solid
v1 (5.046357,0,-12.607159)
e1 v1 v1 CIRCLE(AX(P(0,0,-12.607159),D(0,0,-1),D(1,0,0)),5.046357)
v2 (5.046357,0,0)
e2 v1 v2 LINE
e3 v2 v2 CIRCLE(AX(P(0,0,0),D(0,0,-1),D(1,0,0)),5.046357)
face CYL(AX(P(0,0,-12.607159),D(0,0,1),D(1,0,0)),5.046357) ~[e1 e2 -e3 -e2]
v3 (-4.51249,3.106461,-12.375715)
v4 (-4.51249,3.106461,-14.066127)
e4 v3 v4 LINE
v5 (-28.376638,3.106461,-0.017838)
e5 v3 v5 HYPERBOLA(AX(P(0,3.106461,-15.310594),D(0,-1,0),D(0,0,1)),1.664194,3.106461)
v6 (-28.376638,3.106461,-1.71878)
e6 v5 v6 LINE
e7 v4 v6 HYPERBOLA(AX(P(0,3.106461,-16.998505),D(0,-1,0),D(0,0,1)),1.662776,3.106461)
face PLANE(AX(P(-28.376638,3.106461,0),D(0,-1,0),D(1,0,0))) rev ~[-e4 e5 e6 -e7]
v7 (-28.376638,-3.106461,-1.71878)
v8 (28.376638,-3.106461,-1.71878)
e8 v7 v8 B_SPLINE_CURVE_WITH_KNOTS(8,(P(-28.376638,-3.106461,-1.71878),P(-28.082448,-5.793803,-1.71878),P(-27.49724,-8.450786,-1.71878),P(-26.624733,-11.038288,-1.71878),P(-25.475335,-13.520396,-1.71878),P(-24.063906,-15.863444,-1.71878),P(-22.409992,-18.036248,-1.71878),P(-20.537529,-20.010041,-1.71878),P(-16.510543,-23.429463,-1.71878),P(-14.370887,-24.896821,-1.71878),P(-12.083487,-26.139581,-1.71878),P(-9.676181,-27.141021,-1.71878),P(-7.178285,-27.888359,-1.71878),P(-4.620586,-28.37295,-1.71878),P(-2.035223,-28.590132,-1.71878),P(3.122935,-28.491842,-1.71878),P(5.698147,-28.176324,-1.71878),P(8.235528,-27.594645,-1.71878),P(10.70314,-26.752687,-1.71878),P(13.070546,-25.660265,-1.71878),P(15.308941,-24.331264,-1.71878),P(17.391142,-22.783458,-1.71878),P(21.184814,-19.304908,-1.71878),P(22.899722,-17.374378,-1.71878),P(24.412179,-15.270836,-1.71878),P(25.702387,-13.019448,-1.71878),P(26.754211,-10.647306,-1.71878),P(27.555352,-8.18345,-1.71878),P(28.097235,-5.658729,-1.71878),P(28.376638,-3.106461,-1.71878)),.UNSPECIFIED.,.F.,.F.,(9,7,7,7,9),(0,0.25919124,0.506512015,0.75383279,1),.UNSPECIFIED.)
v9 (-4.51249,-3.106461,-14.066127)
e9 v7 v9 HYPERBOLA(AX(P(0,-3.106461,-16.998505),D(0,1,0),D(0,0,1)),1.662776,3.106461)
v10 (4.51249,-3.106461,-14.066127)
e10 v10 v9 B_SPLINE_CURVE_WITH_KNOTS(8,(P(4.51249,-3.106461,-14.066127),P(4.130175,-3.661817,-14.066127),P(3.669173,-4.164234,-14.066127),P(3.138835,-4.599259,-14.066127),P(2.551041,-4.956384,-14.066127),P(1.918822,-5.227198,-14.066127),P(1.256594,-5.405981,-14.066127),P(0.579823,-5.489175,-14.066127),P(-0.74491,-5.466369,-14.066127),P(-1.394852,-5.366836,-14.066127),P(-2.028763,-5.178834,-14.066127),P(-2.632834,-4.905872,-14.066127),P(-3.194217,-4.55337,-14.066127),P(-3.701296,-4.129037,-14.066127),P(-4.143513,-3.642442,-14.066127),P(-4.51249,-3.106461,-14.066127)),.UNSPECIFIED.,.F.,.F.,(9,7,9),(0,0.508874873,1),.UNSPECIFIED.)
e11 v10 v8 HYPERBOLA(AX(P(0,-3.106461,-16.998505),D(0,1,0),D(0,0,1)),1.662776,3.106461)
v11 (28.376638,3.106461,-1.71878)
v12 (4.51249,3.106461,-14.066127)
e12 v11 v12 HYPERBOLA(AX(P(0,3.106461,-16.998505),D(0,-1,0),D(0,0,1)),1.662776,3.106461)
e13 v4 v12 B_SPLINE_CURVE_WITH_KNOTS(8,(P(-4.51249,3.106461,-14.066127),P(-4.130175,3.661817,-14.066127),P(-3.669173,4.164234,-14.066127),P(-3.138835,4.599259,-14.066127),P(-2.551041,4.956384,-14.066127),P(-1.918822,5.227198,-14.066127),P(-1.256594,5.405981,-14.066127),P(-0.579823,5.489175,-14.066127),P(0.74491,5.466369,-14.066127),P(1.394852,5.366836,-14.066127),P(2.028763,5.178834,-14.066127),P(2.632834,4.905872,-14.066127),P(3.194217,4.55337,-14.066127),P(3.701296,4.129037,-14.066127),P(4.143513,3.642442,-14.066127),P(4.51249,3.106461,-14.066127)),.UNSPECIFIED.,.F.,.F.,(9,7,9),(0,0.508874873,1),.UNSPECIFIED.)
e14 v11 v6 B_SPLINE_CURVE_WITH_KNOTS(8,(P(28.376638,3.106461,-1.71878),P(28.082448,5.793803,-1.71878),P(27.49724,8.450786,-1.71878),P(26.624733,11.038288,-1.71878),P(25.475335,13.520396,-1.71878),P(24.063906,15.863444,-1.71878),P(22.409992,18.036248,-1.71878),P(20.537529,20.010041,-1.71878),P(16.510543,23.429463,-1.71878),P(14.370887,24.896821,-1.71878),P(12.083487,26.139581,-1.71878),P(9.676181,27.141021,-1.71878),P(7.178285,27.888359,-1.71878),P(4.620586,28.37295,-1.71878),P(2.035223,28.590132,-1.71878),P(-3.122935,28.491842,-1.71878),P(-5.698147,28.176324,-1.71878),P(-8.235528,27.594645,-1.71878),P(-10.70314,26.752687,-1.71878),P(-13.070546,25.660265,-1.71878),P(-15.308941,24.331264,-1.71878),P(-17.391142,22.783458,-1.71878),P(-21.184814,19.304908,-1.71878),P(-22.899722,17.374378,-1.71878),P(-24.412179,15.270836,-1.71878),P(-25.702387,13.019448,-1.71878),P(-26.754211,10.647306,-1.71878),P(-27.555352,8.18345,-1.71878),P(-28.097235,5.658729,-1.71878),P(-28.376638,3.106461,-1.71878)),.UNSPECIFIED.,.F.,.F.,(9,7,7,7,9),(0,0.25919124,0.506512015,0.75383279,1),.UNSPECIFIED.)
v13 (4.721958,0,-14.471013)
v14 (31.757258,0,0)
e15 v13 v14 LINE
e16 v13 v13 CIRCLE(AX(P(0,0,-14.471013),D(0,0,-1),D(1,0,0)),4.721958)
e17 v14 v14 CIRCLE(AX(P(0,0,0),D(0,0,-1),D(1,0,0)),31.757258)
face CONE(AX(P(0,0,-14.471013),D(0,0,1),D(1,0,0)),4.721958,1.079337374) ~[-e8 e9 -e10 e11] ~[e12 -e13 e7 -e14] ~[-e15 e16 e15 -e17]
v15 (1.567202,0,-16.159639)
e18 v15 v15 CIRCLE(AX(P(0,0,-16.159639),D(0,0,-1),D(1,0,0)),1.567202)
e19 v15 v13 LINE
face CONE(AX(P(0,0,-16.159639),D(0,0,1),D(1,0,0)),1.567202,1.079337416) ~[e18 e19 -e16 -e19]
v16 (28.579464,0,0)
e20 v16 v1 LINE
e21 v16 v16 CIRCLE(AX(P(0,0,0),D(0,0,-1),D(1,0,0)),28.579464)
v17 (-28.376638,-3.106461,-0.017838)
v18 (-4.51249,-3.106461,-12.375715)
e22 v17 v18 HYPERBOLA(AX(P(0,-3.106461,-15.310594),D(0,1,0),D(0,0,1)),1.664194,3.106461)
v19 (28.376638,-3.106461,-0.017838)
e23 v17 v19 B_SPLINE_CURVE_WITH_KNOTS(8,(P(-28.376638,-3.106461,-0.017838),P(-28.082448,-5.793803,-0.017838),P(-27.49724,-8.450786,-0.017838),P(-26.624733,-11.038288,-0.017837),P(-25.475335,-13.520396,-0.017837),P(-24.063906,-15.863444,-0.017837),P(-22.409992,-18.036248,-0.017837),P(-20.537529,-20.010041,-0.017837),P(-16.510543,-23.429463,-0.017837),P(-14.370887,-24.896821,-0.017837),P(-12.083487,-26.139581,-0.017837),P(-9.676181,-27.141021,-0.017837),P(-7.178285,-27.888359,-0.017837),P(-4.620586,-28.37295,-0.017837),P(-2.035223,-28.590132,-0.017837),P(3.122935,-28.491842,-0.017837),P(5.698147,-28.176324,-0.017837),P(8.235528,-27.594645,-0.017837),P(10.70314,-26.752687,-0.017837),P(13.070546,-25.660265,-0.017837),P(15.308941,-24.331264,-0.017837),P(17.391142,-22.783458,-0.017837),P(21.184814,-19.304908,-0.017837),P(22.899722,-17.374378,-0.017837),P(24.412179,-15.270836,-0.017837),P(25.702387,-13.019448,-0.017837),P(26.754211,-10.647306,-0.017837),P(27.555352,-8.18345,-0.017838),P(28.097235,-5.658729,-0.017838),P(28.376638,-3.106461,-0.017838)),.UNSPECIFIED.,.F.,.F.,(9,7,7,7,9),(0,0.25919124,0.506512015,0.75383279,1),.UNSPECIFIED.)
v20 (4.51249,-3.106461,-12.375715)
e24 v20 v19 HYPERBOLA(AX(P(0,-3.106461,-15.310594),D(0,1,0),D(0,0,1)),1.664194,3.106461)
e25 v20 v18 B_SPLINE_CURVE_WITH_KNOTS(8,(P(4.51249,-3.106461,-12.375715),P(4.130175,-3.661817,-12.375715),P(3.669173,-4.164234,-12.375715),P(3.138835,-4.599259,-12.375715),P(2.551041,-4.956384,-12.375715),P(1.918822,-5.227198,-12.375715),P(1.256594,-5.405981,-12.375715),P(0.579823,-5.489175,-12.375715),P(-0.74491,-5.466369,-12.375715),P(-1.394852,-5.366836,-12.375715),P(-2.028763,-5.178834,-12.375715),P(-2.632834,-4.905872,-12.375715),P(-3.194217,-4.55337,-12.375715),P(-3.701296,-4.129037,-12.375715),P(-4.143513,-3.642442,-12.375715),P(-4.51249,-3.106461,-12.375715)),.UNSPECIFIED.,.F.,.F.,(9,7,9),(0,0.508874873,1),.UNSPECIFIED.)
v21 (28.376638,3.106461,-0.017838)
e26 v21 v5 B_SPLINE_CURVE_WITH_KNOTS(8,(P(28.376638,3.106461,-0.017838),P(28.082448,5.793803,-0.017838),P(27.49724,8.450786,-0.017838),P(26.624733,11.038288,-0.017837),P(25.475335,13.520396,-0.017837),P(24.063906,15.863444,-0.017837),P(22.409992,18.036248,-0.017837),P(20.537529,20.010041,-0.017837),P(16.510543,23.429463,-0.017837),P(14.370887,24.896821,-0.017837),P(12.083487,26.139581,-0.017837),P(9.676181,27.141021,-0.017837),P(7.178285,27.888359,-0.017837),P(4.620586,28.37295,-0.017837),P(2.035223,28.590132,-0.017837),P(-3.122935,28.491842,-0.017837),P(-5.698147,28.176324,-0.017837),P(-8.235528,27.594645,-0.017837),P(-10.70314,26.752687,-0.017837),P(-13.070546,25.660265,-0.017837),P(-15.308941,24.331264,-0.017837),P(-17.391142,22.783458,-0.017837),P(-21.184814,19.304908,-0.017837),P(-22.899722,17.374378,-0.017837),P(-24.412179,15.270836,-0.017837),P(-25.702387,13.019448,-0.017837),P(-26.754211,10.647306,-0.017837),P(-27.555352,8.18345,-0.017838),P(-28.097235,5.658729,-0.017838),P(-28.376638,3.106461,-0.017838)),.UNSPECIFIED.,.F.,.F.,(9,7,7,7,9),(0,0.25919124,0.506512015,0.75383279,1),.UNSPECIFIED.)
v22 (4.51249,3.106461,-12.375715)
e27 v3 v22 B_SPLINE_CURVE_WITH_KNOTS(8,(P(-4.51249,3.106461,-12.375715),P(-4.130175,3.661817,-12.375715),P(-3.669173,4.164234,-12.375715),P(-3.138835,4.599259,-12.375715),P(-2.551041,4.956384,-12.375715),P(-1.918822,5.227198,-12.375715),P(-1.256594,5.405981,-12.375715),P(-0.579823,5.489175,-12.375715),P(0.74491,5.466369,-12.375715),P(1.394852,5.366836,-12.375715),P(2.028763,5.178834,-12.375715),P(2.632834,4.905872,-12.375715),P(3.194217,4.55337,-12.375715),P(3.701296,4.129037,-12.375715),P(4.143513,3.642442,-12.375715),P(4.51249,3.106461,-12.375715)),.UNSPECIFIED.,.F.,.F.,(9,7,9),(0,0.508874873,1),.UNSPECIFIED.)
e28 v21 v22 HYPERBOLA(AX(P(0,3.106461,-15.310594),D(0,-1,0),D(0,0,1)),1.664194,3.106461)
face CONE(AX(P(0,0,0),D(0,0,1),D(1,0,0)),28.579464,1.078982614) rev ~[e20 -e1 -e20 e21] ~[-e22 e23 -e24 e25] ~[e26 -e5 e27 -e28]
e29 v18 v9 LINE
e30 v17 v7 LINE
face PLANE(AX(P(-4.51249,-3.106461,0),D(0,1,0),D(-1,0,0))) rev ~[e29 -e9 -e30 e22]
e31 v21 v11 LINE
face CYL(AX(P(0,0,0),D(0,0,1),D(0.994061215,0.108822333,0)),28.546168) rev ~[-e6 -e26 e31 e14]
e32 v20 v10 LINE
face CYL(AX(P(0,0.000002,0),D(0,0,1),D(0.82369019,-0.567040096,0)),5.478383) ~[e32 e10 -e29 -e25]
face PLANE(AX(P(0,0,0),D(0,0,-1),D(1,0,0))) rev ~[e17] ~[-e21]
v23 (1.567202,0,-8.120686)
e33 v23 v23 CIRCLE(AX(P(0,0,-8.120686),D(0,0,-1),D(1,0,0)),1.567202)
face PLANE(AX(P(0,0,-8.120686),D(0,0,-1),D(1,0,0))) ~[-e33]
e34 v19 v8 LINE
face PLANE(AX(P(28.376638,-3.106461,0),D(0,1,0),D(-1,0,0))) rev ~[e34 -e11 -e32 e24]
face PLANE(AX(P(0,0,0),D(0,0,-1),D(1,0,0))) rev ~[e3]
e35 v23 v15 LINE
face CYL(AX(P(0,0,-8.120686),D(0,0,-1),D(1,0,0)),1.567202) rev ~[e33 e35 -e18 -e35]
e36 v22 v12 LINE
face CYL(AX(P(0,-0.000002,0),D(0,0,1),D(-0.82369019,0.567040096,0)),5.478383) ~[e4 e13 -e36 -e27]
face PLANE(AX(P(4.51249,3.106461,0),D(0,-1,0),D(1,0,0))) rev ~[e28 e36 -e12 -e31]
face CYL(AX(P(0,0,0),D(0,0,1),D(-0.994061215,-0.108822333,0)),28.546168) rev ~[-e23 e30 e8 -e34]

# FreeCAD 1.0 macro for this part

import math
import FreeCAD as App
import Part
import Sketcher
from FreeCAD import Vector
Q = App.Units.Quantity

doc = App.newDocument("Part")
body = doc.addObject("PartDesign::Body", "Body")

# Sketch on XZ plane
sketch1 = body.newObject("Sketcher::SketchObject", "Sketch")
sketch1.AttachmentSupport = (doc.getObject("XZ_Plane"), [""])
sketch1.MapMode = "FlatFace"
sketch1.addGeometry(Part.LineSegment(Vector(0, 0, 0), Vector(0, -8.120686, 0)), False)
sketch1.addGeometry(Part.LineSegment(Vector(0, -8.120686, 0), Vector(1.567202, -8.120686, 0)), False)
sketch1.addGeometry(Part.LineSegment(Vector(1.567202, -8.120686, 0), Vector(1.567202, -16.159639, 0)), False)
sketch1.addGeometry(Part.LineSegment(Vector(1.567202, -16.159639, 0), Vector(4.721958, -14.471013, 0)), False)
sketch1.addGeometry(Part.LineSegment(Vector(4.721958, -14.471013, 0), Vector(31.757258, 0, 0)), False)
sketch1.addGeometry(Part.LineSegment(Vector(31.757258, 0, 0), Vector(28.579464, 0, 0)), False)
sketch1.addGeometry(Part.LineSegment(Vector(28.579464, 0, 0), Vector(5.046357, -12.607159, 0)), False)
sketch1.addGeometry(Part.LineSegment(Vector(5.046357, -12.607159, 0), Vector(5.046357, 0, 0)), False)
sketch1.addGeometry(Part.LineSegment(Vector(5.046357, 0, 0), Vector(0, 0, 0)), False)
sketch1.addConstraint(Sketcher.Constraint("Coincident", 0, 2, 1, 1))
sketch1.addConstraint(Sketcher.Constraint("Coincident", 1, 2, 2, 1))
sketch1.addConstraint(Sketcher.Constraint("Coincident", 2, 2, 3, 1))
sketch1.addConstraint(Sketcher.Constraint("Coincident", 3, 2, 4, 1))
sketch1.addConstraint(Sketcher.Constraint("Coincident", 4, 2, 5, 1))
sketch1.addConstraint(Sketcher.Constraint("Coincident", 5, 2, 6, 1))
sketch1.addConstraint(Sketcher.Constraint("Coincident", 6, 2, 7, 1))
sketch1.addConstraint(Sketcher.Constraint("Coincident", 7, 2, 8, 1))
sketch1.addConstraint(Sketcher.Constraint("Coincident", 8, 2, 0, 1))
sketch1.addConstraint(Sketcher.Constraint("Vertical", 0))
sketch1.addConstraint(Sketcher.Constraint("Horizontal", 1))
sketch1.addConstraint(Sketcher.Constraint("Vertical", 2))
sketch1.addConstraint(Sketcher.Constraint("Horizontal", 5))
sketch1.addConstraint(Sketcher.Constraint("Vertical", 7))
sketch1.addConstraint(Sketcher.Constraint("Horizontal", 8))
sketch1.addConstraint(Sketcher.Constraint("Coincident", 8, 2, -1, 1))
sketch1.addConstraint(Sketcher.Constraint("PointOnObject", 4, 2, -1))
sketch1.addConstraint(Sketcher.Constraint("Parallel", 3, 4))
sketch1.addConstraint(Sketcher.Constraint("Distance", 4, 30.6646))
sketch1.addConstraint(Sketcher.Constraint("DistanceY", 7, 1, 7, 2, 12.607159))
sketch1.addConstraint(Sketcher.Constraint("DistanceX", 3, 2, 4, 2, 27.0353))
sketch1.addConstraint(Sketcher.Constraint("DistanceX", 3, 2, 6, 2, 0.324399))
sketch1.addConstraint(Sketcher.Constraint("Distance", 3, 3.57826))
sketch1.addConstraint(Sketcher.Constraint("DistanceX", 1, 1, 1, 2, 1.567202))
sketch1.addConstraint(Sketcher.Constraint("DistanceX", 5, 2, 5, 1, 3.177794))
sketch1.addConstraint(Sketcher.Constraint("DistanceY", 0, 2, 0, 1, 8.120686))
revolution = body.newObject("PartDesign::Revolution", "Revolution")
revolution.Profile = sketch1
revolution.ReferenceAxis = (sketch1, ["V_Axis"])
revolution.Angle = 360

# Sketch on XY plane
sketch2 = body.newObject("Sketcher::SketchObject", "Sketch001")
sketch2.AttachmentSupport = (doc.getObject("XY_Plane"), [""])
sketch2.MapMode = "FlatFace"
sketch2.addGeometry(Part.ArcOfCircle(Part.Circle(Vector(0, -0.000002, 0), Vector(0, 0, 1), 5.478383), math.radians(34.54408), math.radians(145.45592)), False)
sketch2.addGeometry(Part.LineSegment(Vector(4.51249, 3.106461, 0), Vector(28.376638, 3.106461, 0)), False)
sketch2.addGeometry(Part.ArcOfCircle(Part.Circle(Vector(0, 0, 0), Vector(0, 0, 1), 28.546168), math.radians(6.247433), math.radians(173.752567)), False)
sketch2.addGeometry(Part.LineSegment(Vector(-28.376638, 3.106461, 0), Vector(-4.51249, 3.106461, 0)), False)
sketch2.addGeometry(Part.LineSegment(Vector(28.376638, -3.106461, 0), Vector(4.51249, -3.106461, 0)), False)
sketch2.addGeometry(Part.ArcOfCircle(Part.Circle(Vector(0, 0.000002, 0), Vector(0, 0, 1), 5.478383), math.radians(-145.45592), math.radians(-34.54408)), False)
sketch2.addGeometry(Part.LineSegment(Vector(-4.51249, -3.106461, 0), Vector(-28.376638, -3.106461, 0)), False)
sketch2.addGeometry(Part.ArcOfCircle(Part.Circle(Vector(0, 0, 0), Vector(0, 0, 1), 28.546168), math.radians(-173.752567), math.radians(-6.247433)), False)
sketch2.addConstraint(Sketcher.Constraint("Coincident", 0, 1, 1, 1))
sketch2.addConstraint(Sketcher.Constraint("Coincident", 1, 2, 2, 1))
sketch2.addConstraint(Sketcher.Constraint("Coincident", 2, 2, 3, 1))
sketch2.addConstraint(Sketcher.Constraint("Coincident", 3, 2, 0, 2))
sketch2.addConstraint(Sketcher.Constraint("Coincident", 4, 2, 5, 2))
sketch2.addConstraint(Sketcher.Constraint("Coincident", 5, 1, 6, 1))
sketch2.addConstraint(Sketcher.Constraint("Coincident", 6, 2, 7, 1))
sketch2.addConstraint(Sketcher.Constraint("Coincident", 7, 2, 4, 1))
sketch2.addConstraint(Sketcher.Constraint("Horizontal", 1))
sketch2.addConstraint(Sketcher.Constraint("Horizontal", 3))
sketch2.addConstraint(Sketcher.Constraint("Horizontal", 4))
sketch2.addConstraint(Sketcher.Constraint("Horizontal", 6))
sketch2.addConstraint(Sketcher.Constraint("Coincident", 0, 3, -1, 1))
sketch2.addConstraint(Sketcher.Constraint("Coincident", 2, 3, -1, 1))
sketch2.addConstraint(Sketcher.Constraint("Coincident", 5, 3, -1, 1))
sketch2.addConstraint(Sketcher.Constraint("Coincident", 7, 3, -1, 1))
sketch2.addConstraint(Sketcher.Constraint("Equal", 0, 5))
sketch2.addConstraint(Sketcher.Constraint("Equal", 2, 7))
sketch2.addConstraint(Sketcher.Constraint("Horizontal", 1, 2, 2, 2))
sketch2.addConstraint(Sketcher.Constraint("Horizontal", 4, 2, 5, 1))
sketch2.addConstraint(Sketcher.Constraint("Vertical", 0, 1, 4, 2))
sketch2.addConstraint(Sketcher.Constraint("Radius", 0, 5.478383))
sketch2.addConstraint(Sketcher.Constraint("Radius", 2, 28.546168))
sketch2.addConstraint(Sketcher.Constraint("DistanceX", 1, 1, 1, 2, 23.864148))
pocket1 = body.newObject("PartDesign::Pocket", "Pocket")
pocket1.Profile = sketch2
pocket1.Length = Q("1 in")

doc.recompute()
